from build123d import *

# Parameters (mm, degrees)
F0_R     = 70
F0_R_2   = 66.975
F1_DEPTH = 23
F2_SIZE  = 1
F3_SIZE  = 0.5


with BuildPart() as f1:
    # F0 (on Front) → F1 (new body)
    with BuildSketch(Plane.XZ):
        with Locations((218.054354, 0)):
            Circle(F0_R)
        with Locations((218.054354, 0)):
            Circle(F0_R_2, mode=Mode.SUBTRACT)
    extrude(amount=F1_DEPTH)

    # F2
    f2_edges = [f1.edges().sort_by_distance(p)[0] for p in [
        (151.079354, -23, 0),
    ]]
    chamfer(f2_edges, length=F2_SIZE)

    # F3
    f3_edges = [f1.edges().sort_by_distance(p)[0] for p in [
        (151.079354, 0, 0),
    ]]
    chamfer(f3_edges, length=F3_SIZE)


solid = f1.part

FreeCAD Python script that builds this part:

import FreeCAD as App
import Part
import Sketcher

V = App.Vector


def edges_at(feature, points):
    """Names of the edges that pass closest to the given points."""
    edges = feature.Shape.Edges
    near = lambda p: min(range(len(edges)), key=lambda i: edges[i].distToShape(Part.Vertex(*p))[0])
    return sorted({f"Edge{near(p) + 1}" for p in points})

doc = App.newDocument("Part")
body = doc.addObject("PartDesign::Body", "Body")

# Sketch on XZ plane
sketch1 = body.newObject("Sketcher::SketchObject", "Sketch")
sketch1.AttachmentSupport = (doc.getObject("XZ_Plane"), [""])
sketch1.MapMode = "FlatFace"
sketch1.addGeometry([
    Part.Circle(V(218, 0, 0), V(0, 0, 1), 70),
    Part.Circle(V(218, 0, 0), V(0, 0, 1), 67),
], False)
sketch1.addConstraint([
    Sketcher.Constraint("Coincident", 1, 3, 0, 3),
    Sketcher.Constraint("PointOnObject", 0, 3, -1),
    Sketcher.Constraint("Diameter", 0, 140.0),
    Sketcher.Constraint("Diameter", 1, 133.95),
    Sketcher.Constraint("DistanceX", -1, 1, 0, 3, 218.054354),
])
pad1 = body.newObject("PartDesign::Pad", "Pad")
pad1.Profile = sketch1
pad1.Length = 23
doc.recompute()

chamfer = body.newObject("PartDesign::Chamfer", "Chamfer")
chamfer.Base = (pad1, edges_at(pad1, [(151.079, -23, 0)]))
chamfer.Size = 1
doc.recompute()

chamfer2 = body.newObject("PartDesign::Chamfer", "Chamfer001")
chamfer2.Base = (chamfer, edges_at(chamfer, [(151.079, 0, 0)]))
chamfer2.Size = 0.5

doc.recompute()
